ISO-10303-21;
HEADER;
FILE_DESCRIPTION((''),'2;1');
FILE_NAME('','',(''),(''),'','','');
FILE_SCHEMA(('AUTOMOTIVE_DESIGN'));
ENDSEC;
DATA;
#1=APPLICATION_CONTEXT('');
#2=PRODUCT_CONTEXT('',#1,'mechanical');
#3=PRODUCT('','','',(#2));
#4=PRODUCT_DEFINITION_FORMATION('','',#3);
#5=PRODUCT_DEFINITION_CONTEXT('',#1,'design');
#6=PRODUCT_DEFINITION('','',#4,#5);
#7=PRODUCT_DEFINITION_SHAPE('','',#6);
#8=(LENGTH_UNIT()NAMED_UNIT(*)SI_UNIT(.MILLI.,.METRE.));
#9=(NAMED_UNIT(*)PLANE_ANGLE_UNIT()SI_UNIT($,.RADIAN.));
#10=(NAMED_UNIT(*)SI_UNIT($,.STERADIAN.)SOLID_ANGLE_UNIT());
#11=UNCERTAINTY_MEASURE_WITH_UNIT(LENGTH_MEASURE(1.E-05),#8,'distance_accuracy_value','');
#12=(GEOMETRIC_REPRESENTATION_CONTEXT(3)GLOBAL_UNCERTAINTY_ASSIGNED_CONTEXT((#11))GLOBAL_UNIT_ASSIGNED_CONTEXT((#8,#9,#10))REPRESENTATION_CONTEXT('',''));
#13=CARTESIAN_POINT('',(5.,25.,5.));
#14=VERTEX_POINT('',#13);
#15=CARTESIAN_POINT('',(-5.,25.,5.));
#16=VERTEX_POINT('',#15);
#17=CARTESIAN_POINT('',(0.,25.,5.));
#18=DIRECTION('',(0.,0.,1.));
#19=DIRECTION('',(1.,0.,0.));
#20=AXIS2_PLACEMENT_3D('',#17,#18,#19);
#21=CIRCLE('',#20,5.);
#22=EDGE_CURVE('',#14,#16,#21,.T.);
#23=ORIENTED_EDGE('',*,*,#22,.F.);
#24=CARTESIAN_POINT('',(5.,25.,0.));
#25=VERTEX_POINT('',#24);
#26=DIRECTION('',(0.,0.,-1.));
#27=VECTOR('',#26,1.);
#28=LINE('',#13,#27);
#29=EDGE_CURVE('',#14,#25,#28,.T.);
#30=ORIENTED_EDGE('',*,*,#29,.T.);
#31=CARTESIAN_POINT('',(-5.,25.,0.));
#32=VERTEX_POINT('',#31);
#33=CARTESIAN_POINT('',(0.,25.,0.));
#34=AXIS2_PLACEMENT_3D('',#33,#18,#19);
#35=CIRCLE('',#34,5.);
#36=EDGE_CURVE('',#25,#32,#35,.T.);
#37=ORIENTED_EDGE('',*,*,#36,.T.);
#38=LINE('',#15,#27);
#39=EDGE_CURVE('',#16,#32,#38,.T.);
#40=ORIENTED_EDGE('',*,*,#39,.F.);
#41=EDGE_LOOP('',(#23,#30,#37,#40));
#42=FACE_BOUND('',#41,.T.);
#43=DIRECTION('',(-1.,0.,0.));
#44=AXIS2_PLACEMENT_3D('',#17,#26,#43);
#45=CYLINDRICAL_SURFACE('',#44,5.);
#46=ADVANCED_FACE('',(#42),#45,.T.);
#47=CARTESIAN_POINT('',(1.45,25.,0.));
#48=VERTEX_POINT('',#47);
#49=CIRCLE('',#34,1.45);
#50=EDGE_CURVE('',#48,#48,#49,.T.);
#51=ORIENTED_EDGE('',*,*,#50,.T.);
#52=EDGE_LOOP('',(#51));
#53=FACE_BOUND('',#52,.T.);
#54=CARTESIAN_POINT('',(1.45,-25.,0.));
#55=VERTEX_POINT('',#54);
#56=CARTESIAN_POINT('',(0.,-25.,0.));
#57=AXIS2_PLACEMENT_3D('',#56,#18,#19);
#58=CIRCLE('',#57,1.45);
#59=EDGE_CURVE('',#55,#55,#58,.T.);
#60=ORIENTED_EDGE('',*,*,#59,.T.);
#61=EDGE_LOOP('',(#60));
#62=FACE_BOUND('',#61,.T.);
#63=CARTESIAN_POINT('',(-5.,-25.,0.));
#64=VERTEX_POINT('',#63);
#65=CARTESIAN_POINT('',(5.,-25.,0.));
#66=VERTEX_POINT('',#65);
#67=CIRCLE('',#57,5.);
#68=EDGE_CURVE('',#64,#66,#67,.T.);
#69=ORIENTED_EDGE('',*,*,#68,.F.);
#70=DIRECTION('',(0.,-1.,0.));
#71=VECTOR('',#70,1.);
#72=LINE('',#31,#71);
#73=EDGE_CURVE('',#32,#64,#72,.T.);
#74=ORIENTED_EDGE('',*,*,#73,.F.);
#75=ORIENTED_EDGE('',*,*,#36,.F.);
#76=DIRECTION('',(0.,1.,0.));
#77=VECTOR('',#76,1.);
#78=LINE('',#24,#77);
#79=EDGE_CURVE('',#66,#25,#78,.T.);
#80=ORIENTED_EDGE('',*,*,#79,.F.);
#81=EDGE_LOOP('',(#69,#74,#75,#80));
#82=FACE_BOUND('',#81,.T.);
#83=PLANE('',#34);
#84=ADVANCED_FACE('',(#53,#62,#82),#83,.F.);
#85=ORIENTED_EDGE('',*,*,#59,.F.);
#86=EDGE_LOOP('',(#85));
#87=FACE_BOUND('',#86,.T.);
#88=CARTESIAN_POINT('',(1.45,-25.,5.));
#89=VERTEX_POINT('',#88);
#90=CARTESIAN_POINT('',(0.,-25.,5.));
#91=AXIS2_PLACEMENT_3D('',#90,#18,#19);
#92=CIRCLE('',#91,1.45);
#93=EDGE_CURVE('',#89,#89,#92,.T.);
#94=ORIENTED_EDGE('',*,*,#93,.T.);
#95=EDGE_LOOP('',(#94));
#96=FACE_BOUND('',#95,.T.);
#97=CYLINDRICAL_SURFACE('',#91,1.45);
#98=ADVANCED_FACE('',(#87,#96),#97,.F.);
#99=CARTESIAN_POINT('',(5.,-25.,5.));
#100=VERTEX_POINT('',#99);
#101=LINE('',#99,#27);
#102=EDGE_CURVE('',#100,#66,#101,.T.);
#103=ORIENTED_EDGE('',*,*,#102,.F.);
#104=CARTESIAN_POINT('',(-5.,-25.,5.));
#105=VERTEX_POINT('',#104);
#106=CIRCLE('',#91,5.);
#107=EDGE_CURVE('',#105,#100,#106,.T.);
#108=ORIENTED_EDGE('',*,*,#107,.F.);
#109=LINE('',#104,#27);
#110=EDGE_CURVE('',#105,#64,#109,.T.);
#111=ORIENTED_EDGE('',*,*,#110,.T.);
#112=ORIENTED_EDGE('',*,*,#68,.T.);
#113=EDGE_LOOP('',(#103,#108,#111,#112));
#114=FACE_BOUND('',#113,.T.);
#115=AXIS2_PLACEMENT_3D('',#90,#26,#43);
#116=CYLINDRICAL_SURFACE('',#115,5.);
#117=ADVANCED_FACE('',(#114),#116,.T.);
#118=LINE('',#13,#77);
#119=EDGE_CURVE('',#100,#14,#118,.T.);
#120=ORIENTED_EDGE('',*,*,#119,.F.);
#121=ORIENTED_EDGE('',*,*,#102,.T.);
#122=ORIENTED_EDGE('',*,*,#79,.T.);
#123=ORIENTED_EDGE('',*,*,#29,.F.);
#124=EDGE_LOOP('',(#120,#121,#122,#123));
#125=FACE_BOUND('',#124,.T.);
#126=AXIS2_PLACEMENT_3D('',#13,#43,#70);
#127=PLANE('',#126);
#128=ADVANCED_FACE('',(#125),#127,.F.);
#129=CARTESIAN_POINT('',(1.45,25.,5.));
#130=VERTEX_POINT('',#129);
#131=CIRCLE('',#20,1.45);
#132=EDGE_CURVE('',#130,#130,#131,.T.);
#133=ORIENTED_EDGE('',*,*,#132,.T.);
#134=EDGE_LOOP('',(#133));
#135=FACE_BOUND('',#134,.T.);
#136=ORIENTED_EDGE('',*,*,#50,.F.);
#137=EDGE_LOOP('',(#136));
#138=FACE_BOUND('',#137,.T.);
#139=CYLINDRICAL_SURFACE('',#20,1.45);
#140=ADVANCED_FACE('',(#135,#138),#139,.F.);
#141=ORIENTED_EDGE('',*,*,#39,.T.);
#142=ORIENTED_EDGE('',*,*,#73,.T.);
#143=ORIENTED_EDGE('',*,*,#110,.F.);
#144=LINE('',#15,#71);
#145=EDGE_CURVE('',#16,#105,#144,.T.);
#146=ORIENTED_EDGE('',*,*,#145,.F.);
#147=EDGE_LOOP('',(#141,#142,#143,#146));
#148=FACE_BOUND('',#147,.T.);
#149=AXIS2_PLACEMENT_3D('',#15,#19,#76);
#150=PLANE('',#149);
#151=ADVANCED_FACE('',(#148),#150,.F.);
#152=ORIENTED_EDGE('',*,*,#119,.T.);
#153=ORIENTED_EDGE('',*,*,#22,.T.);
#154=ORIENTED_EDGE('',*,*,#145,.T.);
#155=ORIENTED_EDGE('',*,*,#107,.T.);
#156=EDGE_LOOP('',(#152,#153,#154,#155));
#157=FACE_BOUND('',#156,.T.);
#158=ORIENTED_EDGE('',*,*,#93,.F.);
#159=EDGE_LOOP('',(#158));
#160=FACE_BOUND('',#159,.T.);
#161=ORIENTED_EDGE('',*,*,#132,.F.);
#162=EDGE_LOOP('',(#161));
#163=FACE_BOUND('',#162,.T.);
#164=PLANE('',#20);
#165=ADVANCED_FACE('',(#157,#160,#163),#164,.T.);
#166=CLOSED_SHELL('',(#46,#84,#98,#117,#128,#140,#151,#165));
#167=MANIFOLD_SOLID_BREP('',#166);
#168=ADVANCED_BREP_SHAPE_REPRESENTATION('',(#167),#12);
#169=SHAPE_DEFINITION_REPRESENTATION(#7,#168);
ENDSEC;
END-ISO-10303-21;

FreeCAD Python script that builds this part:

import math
import FreeCAD as App
import Part
import Sketcher
from FreeCAD import Vector

doc = App.newDocument("Part")
params = doc.addObject("Spreadsheet::Sheet", "Params")
for row, (alias, value) in enumerate([
    ("sketch1_radius", "5 mm"),
    ("sketch1_height", "50 mm"),
    ("pad1_length", "5 mm"),
    ("sketch2_diameter", "2.9 mm"),
    ("hole_diameter", "2.9 mm"),
], start=1):
    params.set(f"A{row}", alias)
    params.set(f"B{row}", "=" + value)
    params.setAlias(f"B{row}", alias)

body = doc.addObject("PartDesign::Body", "Body")

# Sketch on XY plane
sketch1 = body.newObject("Sketcher::SketchObject", "Sketch")
sketch1.AttachmentSupport = (doc.getObject("XY_Plane"), [""])
sketch1.MapMode = "FlatFace"
sketch1.addGeometry(Part.LineSegment(Vector(5, -25, 0), Vector(5, 25, 0)), False)
sketch1.addGeometry(Part.ArcOfCircle(Part.Circle(Vector(0, 25, 0), Vector(0, 0, 1), 5), math.radians(0), math.radians(180)), False)
sketch1.addGeometry(Part.LineSegment(Vector(-5, 25, 0), Vector(-5, -25, 0)), False)
sketch1.addGeometry(Part.ArcOfCircle(Part.Circle(Vector(0, -25, 0), Vector(0, 0, 1), 5), math.radians(180), math.radians(360)), False)
sketch1.addConstraint(Sketcher.Constraint("Tangent", 0, 2, 1, 1))
sketch1.addConstraint(Sketcher.Constraint("Tangent", 1, 2, 2, 1))
sketch1.addConstraint(Sketcher.Constraint("Tangent", 2, 2, 3, 1))
sketch1.addConstraint(Sketcher.Constraint("Tangent", 3, 2, 0, 1))
sketch1.addConstraint(Sketcher.Constraint("Vertical", 0))
sketch1.addConstraint(Sketcher.Constraint("Vertical", 2))
sketch1.addConstraint(Sketcher.Constraint("Symmetric", 1, 3, 3, 3, -1, 1))
sketch1.addConstraint(Sketcher.Constraint("Radius", 1, 5.0))
sketch1.addConstraint(Sketcher.Constraint("DistanceY", 0, 1, 0, 2, 50.0))
sketch1.setExpression("Constraints[7]", "Params.sketch1_radius")
sketch1.setExpression("Constraints[8]", "Params.sketch1_height")
pad1 = body.newObject("PartDesign::Pad", "Pad")
pad1.Profile = sketch1
pad1.setExpression("Length", "Params.pad1_length")

# Sketch on XY plane
sketch2 = body.newObject("Sketcher::SketchObject", "Sketch001")
sketch2.AttachmentSupport = (doc.getObject("XY_Plane"), [""])
sketch2.MapMode = "FlatFace"
sketch2.AttachmentOffset = App.Placement(Vector(0, 0, 5), App.Rotation())
sketch2.addGeometry(Part.Circle(Vector(0, 25, 0), Vector(0, 0, 1), 1.4), False)
sketch2.addGeometry(Part.Circle(Vector(0, -25, 0), Vector(0, 0, 1), 1.4), False)
sketch2.addConstraint(Sketcher.Constraint("Equal", 0, 1))
sketch2.addConstraint(Sketcher.Constraint("Symmetric", 0, 3, 1, 3, -1, 1))
sketch2.addConstraint(Sketcher.Constraint("PointOnObject", 0, 3, -2))
sketch2.addConstraint(Sketcher.Constraint("Diameter", 0, 2.9))
sketch2.addConstraint(Sketcher.Constraint("DistanceY", -1, 1, 0, 3, 25.0))
sketch2.setExpression("Constraints[3]", "Params.sketch2_diameter")
doc.recompute()
hole = body.newObject("PartDesign::Hole", "Hole")
hole.Profile = sketch2
hole.ThreadType = "None"
hole.setExpression("Diameter", "Params.hole_diameter")
hole.DepthType = "ThroughAll"

doc.recompute()
